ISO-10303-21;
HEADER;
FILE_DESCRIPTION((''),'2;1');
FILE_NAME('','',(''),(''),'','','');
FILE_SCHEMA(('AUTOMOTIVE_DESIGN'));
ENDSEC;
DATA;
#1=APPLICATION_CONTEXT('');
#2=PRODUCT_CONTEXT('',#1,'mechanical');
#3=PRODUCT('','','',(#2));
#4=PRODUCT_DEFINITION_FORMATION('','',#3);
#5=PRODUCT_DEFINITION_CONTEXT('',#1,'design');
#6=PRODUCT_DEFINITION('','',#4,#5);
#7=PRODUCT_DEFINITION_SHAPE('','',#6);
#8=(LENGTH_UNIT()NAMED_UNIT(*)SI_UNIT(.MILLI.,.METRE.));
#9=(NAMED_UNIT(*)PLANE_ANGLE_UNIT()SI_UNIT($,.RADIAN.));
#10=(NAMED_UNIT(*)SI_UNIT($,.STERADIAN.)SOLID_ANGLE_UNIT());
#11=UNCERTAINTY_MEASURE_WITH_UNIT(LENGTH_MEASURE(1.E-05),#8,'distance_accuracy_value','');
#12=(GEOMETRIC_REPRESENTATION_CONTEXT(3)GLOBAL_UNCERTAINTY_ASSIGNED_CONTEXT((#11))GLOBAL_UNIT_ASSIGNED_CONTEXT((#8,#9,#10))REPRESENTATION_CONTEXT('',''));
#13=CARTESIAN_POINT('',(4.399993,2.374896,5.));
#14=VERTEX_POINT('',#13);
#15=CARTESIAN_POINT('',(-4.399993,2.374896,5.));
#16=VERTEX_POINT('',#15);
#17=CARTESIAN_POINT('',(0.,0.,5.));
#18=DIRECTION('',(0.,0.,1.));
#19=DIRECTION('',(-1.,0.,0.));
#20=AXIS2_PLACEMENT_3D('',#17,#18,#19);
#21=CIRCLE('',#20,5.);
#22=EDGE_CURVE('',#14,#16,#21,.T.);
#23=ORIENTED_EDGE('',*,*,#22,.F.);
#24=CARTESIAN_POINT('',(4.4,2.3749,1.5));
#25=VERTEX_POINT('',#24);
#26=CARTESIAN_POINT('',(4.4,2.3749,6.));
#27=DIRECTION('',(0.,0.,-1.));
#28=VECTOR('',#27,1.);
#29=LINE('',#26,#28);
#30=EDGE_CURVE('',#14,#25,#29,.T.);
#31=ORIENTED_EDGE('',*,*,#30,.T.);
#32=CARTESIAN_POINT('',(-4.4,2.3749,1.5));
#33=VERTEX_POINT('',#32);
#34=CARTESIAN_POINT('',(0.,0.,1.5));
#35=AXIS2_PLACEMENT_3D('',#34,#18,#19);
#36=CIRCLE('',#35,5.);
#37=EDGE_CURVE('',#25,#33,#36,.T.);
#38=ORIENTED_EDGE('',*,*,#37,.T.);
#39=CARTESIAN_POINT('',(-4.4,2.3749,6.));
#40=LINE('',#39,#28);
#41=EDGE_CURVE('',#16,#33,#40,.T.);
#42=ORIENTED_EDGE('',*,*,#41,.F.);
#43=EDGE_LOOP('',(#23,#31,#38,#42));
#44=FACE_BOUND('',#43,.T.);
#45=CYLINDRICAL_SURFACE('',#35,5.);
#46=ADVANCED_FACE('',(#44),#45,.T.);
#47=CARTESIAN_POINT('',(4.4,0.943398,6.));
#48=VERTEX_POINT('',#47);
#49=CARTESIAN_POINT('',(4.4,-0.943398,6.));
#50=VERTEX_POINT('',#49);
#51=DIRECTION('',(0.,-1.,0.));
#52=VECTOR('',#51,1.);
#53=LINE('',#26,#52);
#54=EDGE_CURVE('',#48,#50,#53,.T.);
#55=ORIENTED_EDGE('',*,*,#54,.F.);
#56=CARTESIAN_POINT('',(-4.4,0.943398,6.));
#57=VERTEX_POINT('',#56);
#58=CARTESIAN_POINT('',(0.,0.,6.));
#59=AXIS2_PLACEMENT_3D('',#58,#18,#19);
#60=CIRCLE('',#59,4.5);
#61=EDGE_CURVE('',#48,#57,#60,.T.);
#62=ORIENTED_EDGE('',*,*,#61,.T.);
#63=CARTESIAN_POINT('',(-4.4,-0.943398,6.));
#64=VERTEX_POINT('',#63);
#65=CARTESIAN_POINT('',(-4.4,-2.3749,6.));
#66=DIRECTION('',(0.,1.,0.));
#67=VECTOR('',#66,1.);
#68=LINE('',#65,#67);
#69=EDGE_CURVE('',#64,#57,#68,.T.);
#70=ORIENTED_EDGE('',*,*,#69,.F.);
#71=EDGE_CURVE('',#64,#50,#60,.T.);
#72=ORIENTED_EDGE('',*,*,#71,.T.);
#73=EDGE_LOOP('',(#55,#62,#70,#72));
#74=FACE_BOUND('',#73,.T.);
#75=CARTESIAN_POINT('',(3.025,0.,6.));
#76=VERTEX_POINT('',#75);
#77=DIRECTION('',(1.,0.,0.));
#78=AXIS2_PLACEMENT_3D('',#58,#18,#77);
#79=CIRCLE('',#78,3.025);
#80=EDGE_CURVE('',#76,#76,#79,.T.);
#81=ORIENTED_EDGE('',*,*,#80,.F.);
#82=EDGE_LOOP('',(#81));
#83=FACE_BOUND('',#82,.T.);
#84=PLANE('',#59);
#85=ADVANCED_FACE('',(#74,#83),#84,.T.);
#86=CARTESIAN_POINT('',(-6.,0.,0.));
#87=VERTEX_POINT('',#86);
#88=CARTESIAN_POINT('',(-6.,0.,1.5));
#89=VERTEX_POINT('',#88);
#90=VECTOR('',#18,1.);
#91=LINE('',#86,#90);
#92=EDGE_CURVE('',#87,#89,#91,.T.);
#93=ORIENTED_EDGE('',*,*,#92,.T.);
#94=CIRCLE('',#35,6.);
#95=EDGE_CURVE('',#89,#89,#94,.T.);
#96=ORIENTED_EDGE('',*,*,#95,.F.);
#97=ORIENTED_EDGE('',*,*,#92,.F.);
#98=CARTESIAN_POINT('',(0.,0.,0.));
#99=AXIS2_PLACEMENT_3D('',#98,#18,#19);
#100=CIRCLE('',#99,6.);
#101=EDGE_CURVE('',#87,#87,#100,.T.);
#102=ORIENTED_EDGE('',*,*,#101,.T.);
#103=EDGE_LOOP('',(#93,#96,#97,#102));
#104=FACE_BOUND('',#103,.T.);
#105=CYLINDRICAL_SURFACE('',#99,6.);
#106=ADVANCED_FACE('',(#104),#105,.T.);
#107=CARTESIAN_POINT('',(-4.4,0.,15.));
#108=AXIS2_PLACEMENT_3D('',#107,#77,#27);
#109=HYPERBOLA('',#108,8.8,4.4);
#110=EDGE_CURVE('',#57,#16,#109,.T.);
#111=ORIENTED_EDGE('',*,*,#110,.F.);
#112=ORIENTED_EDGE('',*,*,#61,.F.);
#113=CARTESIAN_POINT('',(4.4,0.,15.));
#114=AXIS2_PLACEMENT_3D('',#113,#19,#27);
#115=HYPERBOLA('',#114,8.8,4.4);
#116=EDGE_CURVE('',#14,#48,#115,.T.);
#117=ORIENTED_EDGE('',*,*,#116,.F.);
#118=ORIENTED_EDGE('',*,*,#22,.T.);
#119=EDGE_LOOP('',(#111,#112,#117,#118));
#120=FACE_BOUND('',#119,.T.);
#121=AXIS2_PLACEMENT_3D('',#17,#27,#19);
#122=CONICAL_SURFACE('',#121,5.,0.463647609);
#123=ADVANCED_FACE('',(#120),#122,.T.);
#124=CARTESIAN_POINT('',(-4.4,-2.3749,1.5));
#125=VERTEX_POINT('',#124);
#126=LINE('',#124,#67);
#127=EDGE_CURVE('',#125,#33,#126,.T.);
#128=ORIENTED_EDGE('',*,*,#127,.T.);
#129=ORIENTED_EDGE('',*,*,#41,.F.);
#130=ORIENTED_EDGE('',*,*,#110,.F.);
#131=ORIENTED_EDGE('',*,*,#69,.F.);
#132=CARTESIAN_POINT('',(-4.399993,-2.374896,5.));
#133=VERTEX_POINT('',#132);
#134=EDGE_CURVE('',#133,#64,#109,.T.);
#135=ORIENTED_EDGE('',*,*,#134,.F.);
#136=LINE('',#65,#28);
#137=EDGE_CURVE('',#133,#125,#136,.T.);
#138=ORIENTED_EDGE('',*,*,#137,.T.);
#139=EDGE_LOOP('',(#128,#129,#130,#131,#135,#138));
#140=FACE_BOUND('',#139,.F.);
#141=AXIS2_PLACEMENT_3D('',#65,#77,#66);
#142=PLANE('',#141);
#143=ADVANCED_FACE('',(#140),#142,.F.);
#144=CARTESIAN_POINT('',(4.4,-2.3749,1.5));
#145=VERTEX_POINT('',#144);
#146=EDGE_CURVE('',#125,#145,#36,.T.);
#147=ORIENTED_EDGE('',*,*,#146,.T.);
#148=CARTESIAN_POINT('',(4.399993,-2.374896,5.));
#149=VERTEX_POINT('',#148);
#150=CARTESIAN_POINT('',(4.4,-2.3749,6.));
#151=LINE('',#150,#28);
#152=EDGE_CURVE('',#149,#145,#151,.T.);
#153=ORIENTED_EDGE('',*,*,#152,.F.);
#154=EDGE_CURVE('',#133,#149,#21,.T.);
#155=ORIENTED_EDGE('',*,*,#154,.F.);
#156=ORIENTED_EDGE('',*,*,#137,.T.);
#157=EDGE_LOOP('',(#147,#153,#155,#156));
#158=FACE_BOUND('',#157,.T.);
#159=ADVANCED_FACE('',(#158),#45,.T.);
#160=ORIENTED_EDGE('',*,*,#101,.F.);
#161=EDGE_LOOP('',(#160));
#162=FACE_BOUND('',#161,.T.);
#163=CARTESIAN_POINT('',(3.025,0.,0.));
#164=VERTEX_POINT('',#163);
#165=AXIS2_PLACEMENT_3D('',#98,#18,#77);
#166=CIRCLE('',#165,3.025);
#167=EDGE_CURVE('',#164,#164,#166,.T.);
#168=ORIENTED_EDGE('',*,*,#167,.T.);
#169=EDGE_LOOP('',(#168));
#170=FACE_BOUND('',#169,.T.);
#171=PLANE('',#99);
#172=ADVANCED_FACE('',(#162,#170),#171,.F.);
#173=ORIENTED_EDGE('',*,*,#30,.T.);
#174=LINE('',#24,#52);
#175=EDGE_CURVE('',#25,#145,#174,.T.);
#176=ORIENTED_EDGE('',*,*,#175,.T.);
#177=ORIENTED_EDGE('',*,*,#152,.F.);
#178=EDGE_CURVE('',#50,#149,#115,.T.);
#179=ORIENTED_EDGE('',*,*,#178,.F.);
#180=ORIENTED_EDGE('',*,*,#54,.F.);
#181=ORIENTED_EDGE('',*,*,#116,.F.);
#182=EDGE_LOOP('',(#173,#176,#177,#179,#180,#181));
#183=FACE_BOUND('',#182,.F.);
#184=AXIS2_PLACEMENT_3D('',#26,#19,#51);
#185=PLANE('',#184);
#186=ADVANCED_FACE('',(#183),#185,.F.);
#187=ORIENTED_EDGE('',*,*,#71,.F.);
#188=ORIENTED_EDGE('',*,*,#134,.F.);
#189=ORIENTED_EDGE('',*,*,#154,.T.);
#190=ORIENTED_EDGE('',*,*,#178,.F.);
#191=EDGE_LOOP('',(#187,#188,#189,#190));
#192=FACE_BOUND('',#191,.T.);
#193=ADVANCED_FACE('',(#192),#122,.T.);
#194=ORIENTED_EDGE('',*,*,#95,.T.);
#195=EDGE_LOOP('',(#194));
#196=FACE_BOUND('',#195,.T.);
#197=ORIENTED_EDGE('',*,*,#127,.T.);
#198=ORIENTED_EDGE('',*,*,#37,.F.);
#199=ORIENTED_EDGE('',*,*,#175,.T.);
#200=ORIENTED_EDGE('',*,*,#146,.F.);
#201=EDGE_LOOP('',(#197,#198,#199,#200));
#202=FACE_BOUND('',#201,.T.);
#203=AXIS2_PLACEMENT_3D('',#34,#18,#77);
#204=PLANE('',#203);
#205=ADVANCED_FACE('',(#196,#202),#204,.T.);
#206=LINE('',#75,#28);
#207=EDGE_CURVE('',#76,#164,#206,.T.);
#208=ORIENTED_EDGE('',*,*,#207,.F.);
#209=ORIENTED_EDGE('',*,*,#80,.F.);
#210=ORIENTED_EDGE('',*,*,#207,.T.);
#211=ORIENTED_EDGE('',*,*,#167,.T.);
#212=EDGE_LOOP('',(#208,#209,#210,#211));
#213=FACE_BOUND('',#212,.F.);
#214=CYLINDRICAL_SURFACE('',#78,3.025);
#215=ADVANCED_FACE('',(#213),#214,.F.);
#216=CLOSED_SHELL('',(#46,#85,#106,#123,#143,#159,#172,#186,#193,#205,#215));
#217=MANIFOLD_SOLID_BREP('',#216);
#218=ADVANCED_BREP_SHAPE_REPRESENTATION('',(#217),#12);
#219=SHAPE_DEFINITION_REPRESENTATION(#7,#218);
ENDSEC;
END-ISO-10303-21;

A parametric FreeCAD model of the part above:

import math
import FreeCAD as App
import Part
import Sketcher
from FreeCAD import Vector

doc = App.newDocument("Part")
body = doc.addObject("PartDesign::Body", "Body")

# Sketch on XZ plane
sketch1 = doc.addObject("Sketcher::SketchObject", "Sketch")
body.addObject(sketch1)
sketch1.AttachmentSupport = (doc.XZ_Plane, [""])
sketch1.MapMode = "FlatFace"
sketch1.addGeometry([
    Part.LineSegment(Vector(-3, 6, 0), Vector(-3, 0, 0)),  # 0
    Part.LineSegment(Vector(-3, 0, 0), Vector(-6, 0, 0)),  # 1
    Part.LineSegment(Vector(-6, 0, 0), Vector(-6, 1.5, 0)),  # 2
    Part.LineSegment(Vector(-6, 1.5, 0), Vector(-5, 1.5, 0)),  # 3
    Part.LineSegment(Vector(-5, 1.5, 0), Vector(-5, 5, 0)),  # 4
    Part.LineSegment(Vector(-5, 5, 0), Vector(-4.5, 6, 0)),  # 5
    Part.LineSegment(Vector(-4.5, 6, 0), Vector(-3, 6, 0)),  # 6
], False)
sketch1.addConstraint([
    Sketcher.Constraint("Coincident", 0, 2, 1, 1),
    Sketcher.Constraint("Coincident", 1, 2, 2, 1),
    Sketcher.Constraint("Coincident", 2, 2, 3, 1),
    Sketcher.Constraint("Coincident", 3, 2, 4, 1),
    Sketcher.Constraint("Coincident", 4, 2, 5, 1),
    Sketcher.Constraint("Coincident", 5, 2, 6, 1),
    Sketcher.Constraint("Coincident", 6, 2, 0, 1),
    Sketcher.Constraint("Vertical", 0),
    Sketcher.Constraint("Horizontal", 1),
    Sketcher.Constraint("Vertical", 2),
    Sketcher.Constraint("Horizontal", 3),
    Sketcher.Constraint("Vertical", 4),
    Sketcher.Constraint("Horizontal", 6),
    Sketcher.Constraint("PointOnObject", 0, 2, -1),
    Sketcher.Constraint("Equal", 6, 2),
    Sketcher.Constraint("DistanceX", 3, 1, 3, 2, 1.0),
    Sketcher.Constraint("DistanceY", 0, 2, 0, 1, 6.0),
    Sketcher.Constraint("DistanceX", 6, 1, 6, 2, 1.5),
    Sketcher.Constraint("DistanceX", 1, 2, -1, 1, 6.0),
    Sketcher.Constraint("DistanceY", 4, 2, 5, 2, 1.0),
    Sketcher.Constraint("DistanceX", 4, 2, 5, 2, 0.5),
])
revolution = doc.addObject("PartDesign::Revolution", "Revolution")
body.addObject(revolution)
revolution.Profile = sketch1
revolution.ReferenceAxis = (sketch1, ["V_Axis"])
revolution.Angle = 360

# Sketch on XY plane
sketch2 = doc.addObject("Sketcher::SketchObject", "Sketch001")
body.addObject(sketch2)
sketch2.AttachmentSupport = (doc.XY_Plane, [""])
sketch2.MapMode = "FlatFace"
sketch2.AttachmentOffset = App.Placement(Vector(0, 0, 6), App.Rotation())
sketch2.addGeometry([
    Part.LineSegment(Vector(4.4, 2.4, 0), Vector(4.4, -2.4, 0)),
    Part.ArcOfCircle(Part.Circle(Vector(0, 0, 0), Vector(0, 0, 1), 5), math.radians(-28), math.radians(28)),
    Part.ArcOfCircle(Part.Circle(Vector(0, 0, 0), Vector(0, 0, 1), 5), math.radians(152), math.radians(208)),
    Part.LineSegment(Vector(-4.4, 2.4, 0), Vector(-4.4, -2.4, 0)),
], False)
sketch2.addConstraint([
    Sketcher.Constraint("Coincident", 0, 1, 1, 2),
    Sketcher.Constraint("Coincident", 1, 1, 0, 2),
    Sketcher.Constraint("Coincident", 2, 1, 3, 1),
    Sketcher.Constraint("Coincident", 3, 2, 2, 2),
    Sketcher.Constraint("Vertical", 0),
    Sketcher.Constraint("Vertical", 3),
    Sketcher.Constraint("Coincident", 1, 3, -1, 1),
    Sketcher.Constraint("Coincident", 2, 3, -1, 1),
    Sketcher.Constraint("Equal", 1, 2),
    Sketcher.Constraint("Horizontal", 0, 1, 2, 1),
    Sketcher.Constraint("Radius", 1, 5.0),
    Sketcher.Constraint("DistanceX", 2, 1, 0, 1, 8.8),
])
pocket1 = doc.addObject("PartDesign::Pocket", "Pocket")
body.addObject(pocket1)
pocket1.Profile = sketch2
pocket1.Length = 4.5

# Sketch on XY plane
sketch3 = doc.addObject("Sketcher::SketchObject", "Sketch002")
body.addObject(sketch3)
sketch3.AttachmentSupport = (doc.XY_Plane, [""])
sketch3.MapMode = "FlatFace"
sketch3.AttachmentOffset = App.Placement(Vector(0, 0, 6), App.Rotation())
sketch3.addGeometry(Part.Circle(Vector(0, 0, 0), Vector(0, 0, 1), 3), False)
sketch3.addConstraint([
    Sketcher.Constraint("Coincident", 0, 3, -1, 1),
    Sketcher.Constraint("Diameter", 0, 6.05),
])
pocket2 = doc.addObject("PartDesign::Pocket", "Pocket001")
body.addObject(pocket2)
pocket2.Profile = sketch3
pocket2.Length = 6

doc.recompute()
